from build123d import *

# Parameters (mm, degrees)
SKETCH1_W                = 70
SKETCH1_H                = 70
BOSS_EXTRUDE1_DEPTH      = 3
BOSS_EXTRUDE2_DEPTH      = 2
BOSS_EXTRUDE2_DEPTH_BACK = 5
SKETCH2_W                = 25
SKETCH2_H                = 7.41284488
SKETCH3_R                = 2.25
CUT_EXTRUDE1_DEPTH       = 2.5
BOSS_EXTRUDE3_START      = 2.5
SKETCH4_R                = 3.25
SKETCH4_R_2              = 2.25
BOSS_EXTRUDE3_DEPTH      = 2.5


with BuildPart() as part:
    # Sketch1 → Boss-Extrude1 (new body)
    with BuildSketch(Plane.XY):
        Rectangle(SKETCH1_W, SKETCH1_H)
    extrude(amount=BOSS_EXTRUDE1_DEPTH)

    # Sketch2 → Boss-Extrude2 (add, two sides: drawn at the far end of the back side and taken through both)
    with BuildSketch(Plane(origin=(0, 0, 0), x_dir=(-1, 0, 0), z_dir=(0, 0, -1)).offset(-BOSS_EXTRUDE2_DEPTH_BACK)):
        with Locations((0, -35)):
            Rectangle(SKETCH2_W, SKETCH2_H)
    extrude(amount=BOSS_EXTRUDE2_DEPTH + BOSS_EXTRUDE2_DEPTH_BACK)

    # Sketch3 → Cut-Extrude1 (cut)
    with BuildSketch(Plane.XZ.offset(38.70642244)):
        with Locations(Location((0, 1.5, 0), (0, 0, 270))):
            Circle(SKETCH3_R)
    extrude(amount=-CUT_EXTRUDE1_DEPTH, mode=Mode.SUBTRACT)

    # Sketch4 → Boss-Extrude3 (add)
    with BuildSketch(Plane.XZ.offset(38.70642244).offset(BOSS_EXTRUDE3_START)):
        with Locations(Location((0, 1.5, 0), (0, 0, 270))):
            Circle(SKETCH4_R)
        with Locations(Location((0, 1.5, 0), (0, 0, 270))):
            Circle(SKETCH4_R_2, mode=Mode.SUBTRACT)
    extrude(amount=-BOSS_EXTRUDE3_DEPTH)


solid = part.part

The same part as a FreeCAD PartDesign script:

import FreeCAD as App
import Part
import Sketcher

V = App.Vector
Q = App.Units.Quantity

doc = App.newDocument("Part")
body = doc.addObject("PartDesign::Body", "Body")

# Sketch on XY plane
sketch1 = doc.addObject("Sketcher::SketchObject", "Sketch")
body.addObject(sketch1)
sketch1.AttachmentSupport = (doc.XY_Plane, [""])
sketch1.MapMode = "FlatFace"
sketch1.addGeometry([
    Part.LineSegment(V(-35, 35, 0), V(-35, -35, 0)),
    Part.LineSegment(V(-35, -35, 0), V(35, -35, 0)),
    Part.LineSegment(V(35, -35, 0), V(35, 35, 0)),
    Part.LineSegment(V(35, 35, 0), V(-35, 35, 0)),
], False)
sketch1.addConstraint([
    Sketcher.Constraint("Coincident", 0, 2, 1, 1),
    Sketcher.Constraint("Coincident", 1, 2, 2, 1),
    Sketcher.Constraint("Coincident", 2, 2, 3, 1),
    Sketcher.Constraint("Coincident", 3, 2, 0, 1),
    Sketcher.Constraint("Vertical", 0),
    Sketcher.Constraint("Horizontal", 1),
    Sketcher.Constraint("Vertical", 2),
    Sketcher.Constraint("Horizontal", 3),
    Sketcher.Constraint("Symmetric", 0, 2, 2, 2, -1, 1),
    Sketcher.Constraint("Equal", 3, 0),
    Sketcher.Constraint("DistanceX", 1, 1, 1, 2, Q("70 mm")),
])
pad1 = doc.addObject("PartDesign::Pad", "Pad")
body.addObject(pad1)
pad1.Profile = sketch1
pad1.Length = 3

# Sketch on XY plane
sketch2 = doc.addObject("Sketcher::SketchObject", "Sketch001")
body.addObject(sketch2)
sketch2.AttachmentSupport = (doc.XY_Plane, [""])
sketch2.MapMode = "FlatFace"
sketch2.addGeometry([
    Part.LineSegment(V(12, -31, 0), V(12, -39, 0)),
    Part.LineSegment(V(12, -39, 0), V(-12, -39, 0)),
    Part.LineSegment(V(-12, -39, 0), V(-12, -31, 0)),
    Part.LineSegment(V(-12, -31, 0), V(12, -31, 0)),
], False)
sketch2.addConstraint([
    Sketcher.Constraint("Coincident", 0, 2, 1, 1),
    Sketcher.Constraint("Coincident", 1, 2, 2, 1),
    Sketcher.Constraint("Coincident", 2, 2, 3, 1),
    Sketcher.Constraint("Coincident", 3, 2, 0, 1),
    Sketcher.Constraint("Vertical", 0),
    Sketcher.Constraint("Horizontal", 1),
    Sketcher.Constraint("Vertical", 2),
    Sketcher.Constraint("Horizontal", 3),
    Sketcher.Constraint("DistanceX", 1, 2, 1, 1, Q("25 mm")),
    Sketcher.Constraint("DistanceX", -1, 1, 0, 2, Q("12.5 mm")),
    Sketcher.Constraint("DistanceY", 0, 2, 0, 1, Q("7.412845 mm")),
    Sketcher.Constraint("DistanceY", 0, 2, -1, 1, Q("38.706422 mm")),
])
pad2 = doc.addObject("PartDesign::Pad", "Pad001")
body.addObject(pad2)
pad2.Profile = sketch2
pad2.Type = "TwoLengths"
pad2.Length = 2
pad2.Length2 = 5
pad2.Reversed = True

# Sketch on XZ plane
sketch3 = doc.addObject("Sketcher::SketchObject", "Sketch002")
body.addObject(sketch3)
sketch3.AttachmentSupport = (doc.XZ_Plane, [""])
sketch3.MapMode = "FlatFace"
sketch3.AttachmentOffset = App.Placement(V(0, 0, 38.706422), App.Rotation())
sketch3.addGeometry(Part.Circle(V(0, 1.5, 0), V(0, 0, 1), 2.2), False)
sketch3.addConstraint([
    Sketcher.Constraint("PointOnObject", 0, 3, -2),
    Sketcher.Constraint("Diameter", 0, Q("4.5 mm")),
    Sketcher.Constraint("DistanceY", -1, 1, 0, 3, Q("1.5 mm")),
])
pocket1 = doc.addObject("PartDesign::Pocket", "Pocket")
body.addObject(pocket1)
pocket1.Profile = sketch3
pocket1.Length = 2.5

# Sketch on XZ plane
sketch4 = doc.addObject("Sketcher::SketchObject", "Sketch003")
body.addObject(sketch4)
sketch4.AttachmentSupport = (doc.XZ_Plane, [""])
sketch4.MapMode = "FlatFace"
sketch4.AttachmentOffset = App.Placement(V(0, 0, 41.206422), App.Rotation())
sketch4.addGeometry([
    Part.Circle(V(0, 1.5, 0), V(0, 0, 1), 3.2),
    Part.Circle(V(0, 1.5, 0), V(0, 0, 1), 2.2),
], False)
sketch4.addConstraint([
    Sketcher.Constraint("Coincident", 1, 3, 0, 3),
    Sketcher.Constraint("PointOnObject", 0, 3, -2),
    Sketcher.Constraint("Diameter", 0, Q("6.5 mm")),
    Sketcher.Constraint("Diameter", 1, Q("4.5 mm")),
    Sketcher.Constraint("DistanceY", -1, 1, 0, 3, Q("1.5 mm")),
])
pad3 = doc.addObject("PartDesign::Pad", "Pad002")
body.addObject(pad3)
pad3.Profile = sketch4
pad3.Length = 2.5
pad3.Reversed = True

doc.recompute()
